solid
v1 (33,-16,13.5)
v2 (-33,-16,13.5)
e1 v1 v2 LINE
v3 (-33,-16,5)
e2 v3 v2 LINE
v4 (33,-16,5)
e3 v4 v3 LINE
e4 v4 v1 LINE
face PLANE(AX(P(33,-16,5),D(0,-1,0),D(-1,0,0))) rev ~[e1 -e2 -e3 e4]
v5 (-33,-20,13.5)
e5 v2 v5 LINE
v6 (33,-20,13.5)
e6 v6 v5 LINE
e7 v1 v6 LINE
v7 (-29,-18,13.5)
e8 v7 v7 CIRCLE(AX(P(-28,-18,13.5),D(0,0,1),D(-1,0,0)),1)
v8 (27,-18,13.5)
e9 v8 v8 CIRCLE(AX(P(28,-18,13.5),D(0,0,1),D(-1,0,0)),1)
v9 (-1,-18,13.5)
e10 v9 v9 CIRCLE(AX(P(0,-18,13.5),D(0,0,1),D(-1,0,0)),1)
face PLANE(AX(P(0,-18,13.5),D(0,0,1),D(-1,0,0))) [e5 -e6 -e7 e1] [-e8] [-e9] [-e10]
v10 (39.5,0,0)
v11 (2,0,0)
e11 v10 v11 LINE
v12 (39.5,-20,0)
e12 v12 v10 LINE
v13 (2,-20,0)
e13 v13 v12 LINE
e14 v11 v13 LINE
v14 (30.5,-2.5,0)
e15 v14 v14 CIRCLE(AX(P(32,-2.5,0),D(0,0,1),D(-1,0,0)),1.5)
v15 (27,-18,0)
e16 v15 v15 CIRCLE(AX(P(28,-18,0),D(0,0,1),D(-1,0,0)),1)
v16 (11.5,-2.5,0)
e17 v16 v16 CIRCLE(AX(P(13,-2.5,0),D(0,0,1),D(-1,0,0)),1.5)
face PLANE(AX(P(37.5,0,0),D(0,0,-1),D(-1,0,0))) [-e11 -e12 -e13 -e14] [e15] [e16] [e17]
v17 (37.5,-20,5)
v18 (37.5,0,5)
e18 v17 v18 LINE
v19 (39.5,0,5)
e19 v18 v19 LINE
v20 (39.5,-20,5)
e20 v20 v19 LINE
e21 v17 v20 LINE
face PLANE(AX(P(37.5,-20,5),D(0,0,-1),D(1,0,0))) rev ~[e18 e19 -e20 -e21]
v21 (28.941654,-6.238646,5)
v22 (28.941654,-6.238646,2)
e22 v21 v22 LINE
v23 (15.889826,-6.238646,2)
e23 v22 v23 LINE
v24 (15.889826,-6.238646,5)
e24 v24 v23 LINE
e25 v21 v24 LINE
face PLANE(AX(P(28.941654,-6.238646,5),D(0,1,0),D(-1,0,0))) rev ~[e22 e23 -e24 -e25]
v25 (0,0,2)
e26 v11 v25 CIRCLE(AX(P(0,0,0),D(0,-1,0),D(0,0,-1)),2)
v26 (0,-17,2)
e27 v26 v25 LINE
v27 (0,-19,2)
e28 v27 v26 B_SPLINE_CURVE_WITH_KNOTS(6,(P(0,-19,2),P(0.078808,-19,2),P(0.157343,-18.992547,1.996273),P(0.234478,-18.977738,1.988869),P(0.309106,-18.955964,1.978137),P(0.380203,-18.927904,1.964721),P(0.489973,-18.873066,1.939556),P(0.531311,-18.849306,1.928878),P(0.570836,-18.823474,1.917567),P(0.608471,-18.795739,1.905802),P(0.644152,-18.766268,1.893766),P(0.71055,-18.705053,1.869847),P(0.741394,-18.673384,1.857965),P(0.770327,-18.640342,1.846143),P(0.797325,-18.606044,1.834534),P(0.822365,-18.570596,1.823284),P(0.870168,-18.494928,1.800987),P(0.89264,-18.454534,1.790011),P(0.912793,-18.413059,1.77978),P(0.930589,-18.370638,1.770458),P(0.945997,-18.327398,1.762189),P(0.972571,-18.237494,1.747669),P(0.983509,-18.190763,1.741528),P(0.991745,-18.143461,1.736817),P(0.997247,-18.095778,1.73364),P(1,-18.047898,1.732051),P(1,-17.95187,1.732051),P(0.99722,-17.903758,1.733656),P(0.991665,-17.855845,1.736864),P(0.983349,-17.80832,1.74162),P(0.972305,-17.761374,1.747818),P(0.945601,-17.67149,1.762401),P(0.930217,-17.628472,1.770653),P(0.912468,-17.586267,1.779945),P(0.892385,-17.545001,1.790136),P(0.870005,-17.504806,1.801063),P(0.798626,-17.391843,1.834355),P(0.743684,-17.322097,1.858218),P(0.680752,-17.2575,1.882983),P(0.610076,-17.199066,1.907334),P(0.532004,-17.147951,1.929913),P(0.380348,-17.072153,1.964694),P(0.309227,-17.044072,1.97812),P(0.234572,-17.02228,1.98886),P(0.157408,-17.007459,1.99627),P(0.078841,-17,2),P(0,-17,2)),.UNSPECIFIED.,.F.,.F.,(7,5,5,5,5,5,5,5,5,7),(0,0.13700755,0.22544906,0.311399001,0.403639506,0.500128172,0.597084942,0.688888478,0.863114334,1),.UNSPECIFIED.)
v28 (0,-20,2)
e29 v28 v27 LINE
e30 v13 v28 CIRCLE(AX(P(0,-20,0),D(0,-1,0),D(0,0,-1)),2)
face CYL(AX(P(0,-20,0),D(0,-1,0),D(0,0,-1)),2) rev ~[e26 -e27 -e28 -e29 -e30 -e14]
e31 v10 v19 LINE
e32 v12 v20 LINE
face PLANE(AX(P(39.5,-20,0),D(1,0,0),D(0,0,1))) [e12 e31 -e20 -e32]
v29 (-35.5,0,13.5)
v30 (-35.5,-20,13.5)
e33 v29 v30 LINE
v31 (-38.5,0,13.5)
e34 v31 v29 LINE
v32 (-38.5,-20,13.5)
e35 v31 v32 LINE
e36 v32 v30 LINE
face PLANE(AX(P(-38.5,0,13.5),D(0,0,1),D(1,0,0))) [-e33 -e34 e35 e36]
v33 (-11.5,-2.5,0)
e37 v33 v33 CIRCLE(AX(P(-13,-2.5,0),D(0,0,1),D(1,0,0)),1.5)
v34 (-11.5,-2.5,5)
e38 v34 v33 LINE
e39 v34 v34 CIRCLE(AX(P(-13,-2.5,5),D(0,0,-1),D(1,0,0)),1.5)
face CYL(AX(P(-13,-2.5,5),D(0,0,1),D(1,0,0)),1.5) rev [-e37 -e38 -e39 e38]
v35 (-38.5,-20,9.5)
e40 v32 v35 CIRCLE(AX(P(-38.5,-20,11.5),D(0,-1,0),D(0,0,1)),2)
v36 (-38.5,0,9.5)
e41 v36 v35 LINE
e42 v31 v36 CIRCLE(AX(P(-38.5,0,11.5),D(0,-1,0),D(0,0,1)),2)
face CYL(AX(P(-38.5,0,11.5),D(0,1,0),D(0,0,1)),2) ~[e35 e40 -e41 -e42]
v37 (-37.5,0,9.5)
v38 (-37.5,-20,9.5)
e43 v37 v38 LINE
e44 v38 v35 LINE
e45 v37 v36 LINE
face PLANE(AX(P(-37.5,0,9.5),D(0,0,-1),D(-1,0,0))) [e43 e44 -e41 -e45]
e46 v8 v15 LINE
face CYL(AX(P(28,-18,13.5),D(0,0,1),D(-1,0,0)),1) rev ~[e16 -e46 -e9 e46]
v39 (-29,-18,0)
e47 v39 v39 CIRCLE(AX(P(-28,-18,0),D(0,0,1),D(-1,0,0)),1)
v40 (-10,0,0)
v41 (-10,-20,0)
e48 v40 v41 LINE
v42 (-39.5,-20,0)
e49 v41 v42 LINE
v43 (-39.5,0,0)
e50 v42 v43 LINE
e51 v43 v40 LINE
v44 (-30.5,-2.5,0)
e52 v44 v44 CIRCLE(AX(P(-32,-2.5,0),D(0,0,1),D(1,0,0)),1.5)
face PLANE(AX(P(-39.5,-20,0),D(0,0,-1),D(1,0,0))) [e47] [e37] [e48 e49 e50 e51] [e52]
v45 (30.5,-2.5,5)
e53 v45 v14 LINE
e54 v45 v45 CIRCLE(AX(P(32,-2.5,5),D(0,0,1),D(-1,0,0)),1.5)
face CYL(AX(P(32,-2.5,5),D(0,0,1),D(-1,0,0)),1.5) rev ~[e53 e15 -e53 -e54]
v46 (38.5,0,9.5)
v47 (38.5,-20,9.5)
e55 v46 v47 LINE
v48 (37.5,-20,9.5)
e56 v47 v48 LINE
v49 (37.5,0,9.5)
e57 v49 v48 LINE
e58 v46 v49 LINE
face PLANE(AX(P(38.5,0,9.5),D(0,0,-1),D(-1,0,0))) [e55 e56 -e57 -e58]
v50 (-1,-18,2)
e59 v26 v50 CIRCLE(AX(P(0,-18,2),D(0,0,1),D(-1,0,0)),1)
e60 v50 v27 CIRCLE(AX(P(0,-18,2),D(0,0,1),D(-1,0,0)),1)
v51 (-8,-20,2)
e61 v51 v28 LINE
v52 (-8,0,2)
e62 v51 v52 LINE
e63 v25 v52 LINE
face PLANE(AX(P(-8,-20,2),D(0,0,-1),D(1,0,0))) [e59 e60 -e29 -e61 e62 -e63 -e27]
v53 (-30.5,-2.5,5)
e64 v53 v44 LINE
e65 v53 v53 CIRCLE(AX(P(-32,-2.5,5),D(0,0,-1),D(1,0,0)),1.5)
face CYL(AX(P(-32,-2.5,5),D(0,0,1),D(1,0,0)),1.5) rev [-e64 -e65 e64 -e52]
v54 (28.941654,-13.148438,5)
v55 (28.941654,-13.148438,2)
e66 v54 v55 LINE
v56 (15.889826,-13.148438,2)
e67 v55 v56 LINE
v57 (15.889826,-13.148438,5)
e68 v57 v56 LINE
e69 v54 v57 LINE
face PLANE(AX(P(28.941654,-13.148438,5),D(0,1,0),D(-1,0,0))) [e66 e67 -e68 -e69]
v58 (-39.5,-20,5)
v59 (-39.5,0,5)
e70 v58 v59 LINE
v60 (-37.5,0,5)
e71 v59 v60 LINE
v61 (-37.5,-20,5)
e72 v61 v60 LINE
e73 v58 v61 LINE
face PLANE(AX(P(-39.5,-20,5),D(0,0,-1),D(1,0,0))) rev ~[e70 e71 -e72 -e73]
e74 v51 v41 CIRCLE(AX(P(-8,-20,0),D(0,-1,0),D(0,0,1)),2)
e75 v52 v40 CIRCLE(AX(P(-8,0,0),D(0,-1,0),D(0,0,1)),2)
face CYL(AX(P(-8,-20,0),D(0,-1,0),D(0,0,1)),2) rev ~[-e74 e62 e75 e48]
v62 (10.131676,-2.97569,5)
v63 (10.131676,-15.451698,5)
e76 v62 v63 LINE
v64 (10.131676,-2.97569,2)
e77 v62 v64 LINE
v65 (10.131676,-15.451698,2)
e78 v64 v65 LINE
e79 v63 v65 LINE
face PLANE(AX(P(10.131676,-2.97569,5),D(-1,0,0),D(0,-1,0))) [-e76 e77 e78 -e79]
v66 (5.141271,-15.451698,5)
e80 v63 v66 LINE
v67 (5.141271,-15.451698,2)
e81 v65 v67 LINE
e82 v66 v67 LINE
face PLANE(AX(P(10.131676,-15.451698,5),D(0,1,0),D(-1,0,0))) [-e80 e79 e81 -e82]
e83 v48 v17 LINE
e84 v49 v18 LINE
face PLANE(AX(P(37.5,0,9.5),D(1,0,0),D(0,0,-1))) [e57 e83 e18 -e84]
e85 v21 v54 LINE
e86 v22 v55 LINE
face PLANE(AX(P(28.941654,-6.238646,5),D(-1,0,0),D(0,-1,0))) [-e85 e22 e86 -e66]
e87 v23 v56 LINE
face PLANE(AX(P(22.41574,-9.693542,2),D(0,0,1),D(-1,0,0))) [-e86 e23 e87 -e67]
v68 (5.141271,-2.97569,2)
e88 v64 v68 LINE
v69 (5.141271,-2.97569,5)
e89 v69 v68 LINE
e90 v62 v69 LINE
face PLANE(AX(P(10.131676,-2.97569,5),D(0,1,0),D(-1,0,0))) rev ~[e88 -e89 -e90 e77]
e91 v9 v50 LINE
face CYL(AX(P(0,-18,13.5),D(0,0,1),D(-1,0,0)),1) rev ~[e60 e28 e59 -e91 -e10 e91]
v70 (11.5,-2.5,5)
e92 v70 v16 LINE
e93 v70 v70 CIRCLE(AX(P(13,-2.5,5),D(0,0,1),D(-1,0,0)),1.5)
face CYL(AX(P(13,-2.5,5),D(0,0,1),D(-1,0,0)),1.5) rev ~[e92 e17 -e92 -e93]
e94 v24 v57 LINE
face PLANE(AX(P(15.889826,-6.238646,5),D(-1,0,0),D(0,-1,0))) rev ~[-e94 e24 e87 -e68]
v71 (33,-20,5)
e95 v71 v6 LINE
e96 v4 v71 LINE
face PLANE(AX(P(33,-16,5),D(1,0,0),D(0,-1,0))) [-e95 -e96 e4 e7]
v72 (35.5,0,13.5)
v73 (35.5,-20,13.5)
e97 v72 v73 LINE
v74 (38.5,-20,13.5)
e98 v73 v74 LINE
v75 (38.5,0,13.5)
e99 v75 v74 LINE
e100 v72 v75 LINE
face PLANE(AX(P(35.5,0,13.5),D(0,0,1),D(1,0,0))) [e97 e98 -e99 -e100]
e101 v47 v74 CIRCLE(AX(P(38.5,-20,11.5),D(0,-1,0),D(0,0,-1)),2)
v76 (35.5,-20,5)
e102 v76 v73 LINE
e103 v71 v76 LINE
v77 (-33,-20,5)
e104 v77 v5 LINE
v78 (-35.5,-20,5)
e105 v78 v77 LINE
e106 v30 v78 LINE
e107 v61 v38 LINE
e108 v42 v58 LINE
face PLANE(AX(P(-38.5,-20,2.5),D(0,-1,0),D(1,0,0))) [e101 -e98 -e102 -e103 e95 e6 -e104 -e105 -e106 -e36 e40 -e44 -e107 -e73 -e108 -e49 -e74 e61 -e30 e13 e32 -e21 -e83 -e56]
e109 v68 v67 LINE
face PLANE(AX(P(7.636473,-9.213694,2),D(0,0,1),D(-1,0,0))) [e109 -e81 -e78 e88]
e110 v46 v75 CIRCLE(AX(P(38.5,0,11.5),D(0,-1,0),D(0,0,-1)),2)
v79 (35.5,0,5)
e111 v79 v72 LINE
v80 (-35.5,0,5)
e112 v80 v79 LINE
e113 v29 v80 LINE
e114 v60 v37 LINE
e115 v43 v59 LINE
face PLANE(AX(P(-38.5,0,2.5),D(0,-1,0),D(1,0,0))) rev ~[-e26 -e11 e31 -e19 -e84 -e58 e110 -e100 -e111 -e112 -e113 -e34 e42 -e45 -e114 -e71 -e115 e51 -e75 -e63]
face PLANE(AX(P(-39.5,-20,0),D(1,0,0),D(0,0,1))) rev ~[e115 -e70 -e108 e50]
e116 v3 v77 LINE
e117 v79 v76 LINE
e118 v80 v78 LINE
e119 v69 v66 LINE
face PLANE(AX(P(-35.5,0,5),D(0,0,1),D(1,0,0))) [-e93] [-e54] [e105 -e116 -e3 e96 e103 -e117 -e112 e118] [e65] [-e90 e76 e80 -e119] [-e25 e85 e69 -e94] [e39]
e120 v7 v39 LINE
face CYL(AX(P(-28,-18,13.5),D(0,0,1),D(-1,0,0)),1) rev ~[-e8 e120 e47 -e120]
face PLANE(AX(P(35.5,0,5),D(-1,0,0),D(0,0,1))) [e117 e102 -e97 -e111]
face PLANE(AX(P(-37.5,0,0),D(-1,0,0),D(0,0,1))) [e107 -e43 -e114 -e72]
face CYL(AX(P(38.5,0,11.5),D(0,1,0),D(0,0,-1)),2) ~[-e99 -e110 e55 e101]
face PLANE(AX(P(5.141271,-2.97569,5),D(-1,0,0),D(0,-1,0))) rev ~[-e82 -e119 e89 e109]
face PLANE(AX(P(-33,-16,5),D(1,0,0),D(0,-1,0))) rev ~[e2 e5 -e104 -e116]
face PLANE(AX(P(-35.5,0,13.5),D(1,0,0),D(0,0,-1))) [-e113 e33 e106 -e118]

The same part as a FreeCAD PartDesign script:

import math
import FreeCAD as App
import Part
import Sketcher
from FreeCAD import Vector


def add_polygon(sketch, points):
    """Adds a closed chain of lines whose ends are joined by coincident constraints."""
    first, n = sketch.GeometryCount, len(points)
    for a, b in zip(points, points[1:] + points[:1]):
        sketch.addGeometry(Part.LineSegment(App.Vector(*a, 0), App.Vector(*b, 0)), False)
    for i in range(n):
        sketch.addConstraint(Sketcher.Constraint("Coincident", first + i, 2, first + (i + 1) % n, 1))

doc = App.newDocument("Part")
body = doc.addObject("PartDesign::Body", "Body")

# Sketch on XZ plane
sketch1 = body.newObject("Sketcher::SketchObject", "Sketch")
sketch1.AttachmentSupport = (doc.getObject("XZ_Plane"), [""])
sketch1.MapMode = "FlatFace"
sketch1.addGeometry(Part.LineSegment(Vector(35.5, 5, 0), Vector(-35.5, 5, 0)), False)
sketch1.addGeometry(Part.LineSegment(Vector(-35.5, 5, 0), Vector(-35.5, 13.5, 0)), False)
sketch1.addGeometry(Part.LineSegment(Vector(-35.5, 13.5, 0), Vector(-38.5, 13.5, 0)), False)
sketch1.addGeometry(Part.ArcOfCircle(Part.Circle(Vector(-38.5, 11.5, 0), Vector(0, 0, 1), 2), math.radians(90), math.radians(270)), False)
sketch1.addGeometry(Part.LineSegment(Vector(-38.5, 9.5, 0), Vector(-37.5, 9.5, 0)), False)
sketch1.addGeometry(Part.LineSegment(Vector(-37.5, 9.5, 0), Vector(-37.5, 0, 0)), False)
sketch1.addGeometry(Part.LineSegment(Vector(-37.5, 0, 0), Vector(37.5, 0, 0)), False)
sketch1.addGeometry(Part.LineSegment(Vector(37.5, 0, 0), Vector(37.5, 9.5, 0)), False)
sketch1.addGeometry(Part.LineSegment(Vector(37.5, 9.5, 0), Vector(38.5, 9.5, 0)), False)
sketch1.addGeometry(Part.ArcOfCircle(Part.Circle(Vector(38.5, 11.5, 0), Vector(0, 0, 1), 2), math.radians(-90), math.radians(90)), False)
sketch1.addGeometry(Part.LineSegment(Vector(38.5, 13.5, 0), Vector(35.5, 13.5, 0)), False)
sketch1.addGeometry(Part.LineSegment(Vector(35.5, 13.5, 0), Vector(35.5, 5, 0)), False)
sketch1.addConstraint(Sketcher.Constraint("Coincident", 0, 2, 1, 1))
sketch1.addConstraint(Sketcher.Constraint("Coincident", 1, 2, 2, 1))
sketch1.addConstraint(Sketcher.Constraint("Tangent", 2, 2, 3, 1))
sketch1.addConstraint(Sketcher.Constraint("Tangent", 3, 2, 4, 1))
sketch1.addConstraint(Sketcher.Constraint("Coincident", 4, 2, 5, 1))
sketch1.addConstraint(Sketcher.Constraint("Coincident", 5, 2, 6, 1))
sketch1.addConstraint(Sketcher.Constraint("Coincident", 6, 2, 7, 1))
sketch1.addConstraint(Sketcher.Constraint("Coincident", 7, 2, 8, 1))
sketch1.addConstraint(Sketcher.Constraint("Tangent", 8, 2, 9, 1))
sketch1.addConstraint(Sketcher.Constraint("Tangent", 9, 2, 10, 1))
sketch1.addConstraint(Sketcher.Constraint("Coincident", 10, 2, 11, 1))
sketch1.addConstraint(Sketcher.Constraint("Coincident", 11, 2, 0, 1))
sketch1.addConstraint(Sketcher.Constraint("Horizontal", 0))
sketch1.addConstraint(Sketcher.Constraint("Vertical", 1))
sketch1.addConstraint(Sketcher.Constraint("Horizontal", 2))
sketch1.addConstraint(Sketcher.Constraint("Horizontal", 4))
sketch1.addConstraint(Sketcher.Constraint("Vertical", 5))
sketch1.addConstraint(Sketcher.Constraint("Horizontal", 6))
sketch1.addConstraint(Sketcher.Constraint("Vertical", 7))
sketch1.addConstraint(Sketcher.Constraint("Horizontal", 8))
sketch1.addConstraint(Sketcher.Constraint("Horizontal", 10))
sketch1.addConstraint(Sketcher.Constraint("Vertical", 11))
sketch1.addConstraint(Sketcher.Constraint("Equal", 3, 9))
sketch1.addConstraint(Sketcher.Constraint("Symmetric", 5, 2, 6, 2, -1, 1))
sketch1.addConstraint(Sketcher.Constraint("Symmetric", 3, 3, 9, 3, -2))
sketch1.addConstraint(Sketcher.Constraint("Equal", 2, 10))
sketch1.addConstraint(Sketcher.Constraint("Radius", 3, 2.0))
sketch1.addConstraint(Sketcher.Constraint("DistanceX", 0, 2, 0, 1, 71.0))
sketch1.addConstraint(Sketcher.Constraint("DistanceX", 2, 2, 2, 1, 3.0))
sketch1.addConstraint(Sketcher.Constraint("DistanceX", 4, 1, 4, 2, 1.0))
sketch1.addConstraint(Sketcher.Constraint("DistanceY", 1, 1, 1, 2, 8.5))
sketch1.addConstraint(Sketcher.Constraint("DistanceY", 5, 2, 5, 1, 9.5))
pad1 = body.newObject("PartDesign::Pad", "Pad")
pad1.Profile = sketch1
pad1.Length = 20

# Sketch on XY plane
sketch2 = body.newObject("Sketcher::SketchObject", "Sketch001")
sketch2.AttachmentSupport = (doc.getObject("XY_Plane"), [""])
sketch2.MapMode = "FlatFace"
sketch2.AttachmentOffset = App.Placement(Vector(0, 0, 5), App.Rotation())
sketch2.addGeometry(Part.Circle(Vector(13, -2.5, 0), Vector(0, 0, 1), 1.5), False)
sketch2.addGeometry(Part.Circle(Vector(32, -2.5, 0), Vector(0, 0, 1), 1.5), False)
sketch2.addConstraint(Sketcher.Constraint("Equal", 0, 1))
sketch2.addConstraint(Sketcher.Constraint("Horizontal", 0, 3, 1, 3))
sketch2.addConstraint(Sketcher.Constraint("Diameter", 0, 3.0))
sketch2.addConstraint(Sketcher.Constraint("DistanceX", -1, 1, 0, 3, 13.0))
sketch2.addConstraint(Sketcher.Constraint("DistanceX", -1, 1, 1, 3, 32.0))
sketch2.addConstraint(Sketcher.Constraint("DistanceY", 0, 3, -1, 1, 2.5))
pocket1 = body.newObject("PartDesign::Pocket", "Pocket")
pocket1.Profile = sketch2
pocket1.Type = "ThroughAll"
doc.recompute()

mirrored = body.newObject("PartDesign::Mirrored", "Mirrored")
mirrored.Originals = [pocket1]
mirrored.MirrorPlane = (doc.getObject("YZ_Plane"), [""])
body.Tip = mirrored

# Sketch on XZ plane
sketch3 = body.newObject("Sketcher::SketchObject", "Sketch002")
sketch3.AttachmentSupport = (doc.getObject("XZ_Plane"), [""])
sketch3.MapMode = "FlatFace"
sketch3.AttachmentOffset = App.Placement(Vector(0, 0, 20), App.Rotation())
sketch3.addGeometry(Part.ArcOfCircle(Part.Circle(Vector(-8, 0, 0), Vector(0, 0, 1), 2), math.radians(90), math.radians(270)), False)
sketch3.addGeometry(Part.LineSegment(Vector(-8, -2, 0), Vector(0, -2, 0)), False)
sketch3.addGeometry(Part.ArcOfCircle(Part.Circle(Vector(0, 0, 0), Vector(0, 0, 1), 2), math.radians(-90), math.radians(90)), False)
sketch3.addGeometry(Part.LineSegment(Vector(0, 2, 0), Vector(-8, 2, 0)), False)
sketch3.addConstraint(Sketcher.Constraint("Tangent", 0, 2, 1, 1))
sketch3.addConstraint(Sketcher.Constraint("Tangent", 1, 2, 2, 1))
sketch3.addConstraint(Sketcher.Constraint("Tangent", 2, 2, 3, 1))
sketch3.addConstraint(Sketcher.Constraint("Tangent", 3, 2, 0, 1))
sketch3.addConstraint(Sketcher.Constraint("Horizontal", 1))
sketch3.addConstraint(Sketcher.Constraint("Horizontal", 3))
sketch3.addConstraint(Sketcher.Constraint("Coincident", 2, 3, -1, 1))
sketch3.addConstraint(Sketcher.Constraint("Radius", 0, 2.0))
sketch3.addConstraint(Sketcher.Constraint("DistanceX", 1, 1, 1, 2, 8.0))
pocket2 = body.newObject("PartDesign::Pocket", "Pocket001")
pocket2.Profile = sketch3
pocket2.Type = "ThroughAll"

# Sketch on XY plane
sketch4 = body.newObject("Sketcher::SketchObject", "Sketch003")
sketch4.AttachmentSupport = (doc.getObject("XY_Plane"), [""])
sketch4.MapMode = "FlatFace"
sketch4.AttachmentOffset = App.Placement(Vector(0, 0, 5), App.Rotation())
add_polygon(sketch4, [(28.941654, -13.148438), (28.941654, -6.238646), (15.889826, -6.238646), (15.889826, -13.148438)])  # lines 0-3
add_polygon(sketch4, [(10.131676, -15.451698), (10.131676, -2.97569), (5.141271, -2.97569), (5.141271, -15.451698)])  # lines 4-7
sketch4.addConstraint(Sketcher.Constraint("Vertical", 0))
sketch4.addConstraint(Sketcher.Constraint("Horizontal", 1))
sketch4.addConstraint(Sketcher.Constraint("Vertical", 2))
sketch4.addConstraint(Sketcher.Constraint("Horizontal", 3))
sketch4.addConstraint(Sketcher.Constraint("Vertical", 4))
sketch4.addConstraint(Sketcher.Constraint("Horizontal", 5))
sketch4.addConstraint(Sketcher.Constraint("Vertical", 6))
sketch4.addConstraint(Sketcher.Constraint("Horizontal", 7))
sketch4.addConstraint(Sketcher.Constraint("DistanceY", 0, 1, 0, 2, 6.909791))
sketch4.addConstraint(Sketcher.Constraint("DistanceX", 1, 2, 1, 1, 13.051827))
sketch4.addConstraint(Sketcher.Constraint("DistanceX", 5, 2, 5, 1, 4.990405))
sketch4.addConstraint(Sketcher.Constraint("DistanceY", 4, 1, 4, 2, 12.476008))
sketch4.addConstraint(Sketcher.Constraint("DistanceY", 4, 2, -1, 1, 2.97569))
sketch4.addConstraint(Sketcher.Constraint("DistanceX", -1, 1, 5, 2, 5.141271))
sketch4.addConstraint(Sketcher.Constraint("DistanceX", 4, 2, 1, 2, 5.758151))
sketch4.addConstraint(Sketcher.Constraint("DistanceY", 6, 2, 2, 2, 2.303261))
pocket3 = body.newObject("PartDesign::Pocket", "Pocket002")
pocket3.Profile = sketch4
pocket3.Length = 3

# Sketch on XZ plane
sketch5 = body.newObject("Sketcher::SketchObject", "Sketch004")
sketch5.AttachmentSupport = (doc.getObject("XZ_Plane"), [""])
sketch5.MapMode = "FlatFace"
sketch5.AttachmentOffset = App.Placement(Vector(0, 0, 20), App.Rotation())
add_polygon(sketch5, [(-39.5, 5), (-39.5, 0), (-37.5, 0), (-37.5, 5)])  # lines 0-3
add_polygon(sketch5, [(37.5, 5), (37.5, 0), (39.5, 0), (39.5, 5)])  # lines 4-7
sketch5.addConstraint(Sketcher.Constraint("Vertical", 0))
sketch5.addConstraint(Sketcher.Constraint("Horizontal", 1))
sketch5.addConstraint(Sketcher.Constraint("Vertical", 2))
sketch5.addConstraint(Sketcher.Constraint("Horizontal", 3))
sketch5.addConstraint(Sketcher.Constraint("Vertical", 4))
sketch5.addConstraint(Sketcher.Constraint("Horizontal", 5))
sketch5.addConstraint(Sketcher.Constraint("Vertical", 6))
sketch5.addConstraint(Sketcher.Constraint("Horizontal", 7))
sketch5.addConstraint(Sketcher.Constraint("Symmetric", 1, 2, 4, 2, -1, 1))
sketch5.addConstraint(Sketcher.Constraint("Symmetric", 0, 2, 5, 2, -2))
sketch5.addConstraint(Sketcher.Constraint("Horizontal", 3, 2, 6, 2))
sketch5.addConstraint(Sketcher.Constraint("DistanceX", 1, 1, 1, 2, 2.0))
sketch5.addConstraint(Sketcher.Constraint("DistanceY", 0, 2, 0, 1, 5.0))
sketch5.addConstraint(Sketcher.Constraint("DistanceX", 1, 2, 4, 2, 75.0))
pad2 = body.newObject("PartDesign::Pad", "Pad001")
pad2.Profile = sketch5
pad2.Length = 20
pad2.Reversed = True

# Sketch on XY plane
sketch6 = body.newObject("Sketcher::SketchObject", "Sketch005")
sketch6.AttachmentSupport = (doc.getObject("XY_Plane"), [""])
sketch6.MapMode = "FlatFace"
sketch6.AttachmentOffset = App.Placement(Vector(0, 0, 5), App.Rotation())
add_polygon(sketch6, [(33, -20), (33, -16), (-33, -16), (-33, -20)])  # lines 0-3
sketch6.addConstraint(Sketcher.Constraint("Vertical", 0))
sketch6.addConstraint(Sketcher.Constraint("Horizontal", 1))
sketch6.addConstraint(Sketcher.Constraint("Vertical", 2))
sketch6.addConstraint(Sketcher.Constraint("Horizontal", 3))
sketch6.addConstraint(Sketcher.Constraint("DistanceX", 1, 2, 1, 1, 66.0))
sketch6.addConstraint(Sketcher.Constraint("DistanceY", 0, 1, 0, 2, 4.0))
sketch6.addConstraint(Sketcher.Constraint("DistanceX", -1, 1, 0, 2, 33.0))
sketch6.addConstraint(Sketcher.Constraint("DistanceY", 0, 2, -1, 1, 16.0))
pad3 = body.newObject("PartDesign::Pad", "Pad002")
pad3.Profile = sketch6
pad3.Length = 8.5

# Sketch on XY plane
sketch7 = body.newObject("Sketcher::SketchObject", "Sketch006")
sketch7.AttachmentSupport = (doc.getObject("XY_Plane"), [""])
sketch7.MapMode = "FlatFace"
sketch7.AttachmentOffset = App.Placement(Vector(0, 0, 13.5), App.Rotation())
sketch7.addGeometry(Part.Circle(Vector(0, -18, 0), Vector(0, 0, 1), 1), False)
sketch7.addGeometry(Part.Circle(Vector(-28, -18, 0), Vector(0, 0, 1), 1), False)
sketch7.addGeometry(Part.Circle(Vector(28, -18, 0), Vector(0, 0, 1), 1), False)
sketch7.addConstraint(Sketcher.Constraint("Equal", 0, 1))
sketch7.addConstraint(Sketcher.Constraint("Equal", 1, 2))
sketch7.addConstraint(Sketcher.Constraint("Symmetric", 1, 3, 2, 3, -2))
sketch7.addConstraint(Sketcher.Constraint("PointOnObject", 0, 3, -2))
sketch7.addConstraint(Sketcher.Constraint("Horizontal", 0, 3, 1, 3))
sketch7.addConstraint(Sketcher.Constraint("Diameter", 0, 2.0))
sketch7.addConstraint(Sketcher.Constraint("DistanceY", 0, 3, -1, 1, 18.0))
sketch7.addConstraint(Sketcher.Constraint("DistanceX", 1, 3, -1, 1, 28.0))
pocket4 = body.newObject("PartDesign::Pocket", "Pocket003")
pocket4.Profile = sketch7
pocket4.Type = "ThroughAll"

doc.recompute()
